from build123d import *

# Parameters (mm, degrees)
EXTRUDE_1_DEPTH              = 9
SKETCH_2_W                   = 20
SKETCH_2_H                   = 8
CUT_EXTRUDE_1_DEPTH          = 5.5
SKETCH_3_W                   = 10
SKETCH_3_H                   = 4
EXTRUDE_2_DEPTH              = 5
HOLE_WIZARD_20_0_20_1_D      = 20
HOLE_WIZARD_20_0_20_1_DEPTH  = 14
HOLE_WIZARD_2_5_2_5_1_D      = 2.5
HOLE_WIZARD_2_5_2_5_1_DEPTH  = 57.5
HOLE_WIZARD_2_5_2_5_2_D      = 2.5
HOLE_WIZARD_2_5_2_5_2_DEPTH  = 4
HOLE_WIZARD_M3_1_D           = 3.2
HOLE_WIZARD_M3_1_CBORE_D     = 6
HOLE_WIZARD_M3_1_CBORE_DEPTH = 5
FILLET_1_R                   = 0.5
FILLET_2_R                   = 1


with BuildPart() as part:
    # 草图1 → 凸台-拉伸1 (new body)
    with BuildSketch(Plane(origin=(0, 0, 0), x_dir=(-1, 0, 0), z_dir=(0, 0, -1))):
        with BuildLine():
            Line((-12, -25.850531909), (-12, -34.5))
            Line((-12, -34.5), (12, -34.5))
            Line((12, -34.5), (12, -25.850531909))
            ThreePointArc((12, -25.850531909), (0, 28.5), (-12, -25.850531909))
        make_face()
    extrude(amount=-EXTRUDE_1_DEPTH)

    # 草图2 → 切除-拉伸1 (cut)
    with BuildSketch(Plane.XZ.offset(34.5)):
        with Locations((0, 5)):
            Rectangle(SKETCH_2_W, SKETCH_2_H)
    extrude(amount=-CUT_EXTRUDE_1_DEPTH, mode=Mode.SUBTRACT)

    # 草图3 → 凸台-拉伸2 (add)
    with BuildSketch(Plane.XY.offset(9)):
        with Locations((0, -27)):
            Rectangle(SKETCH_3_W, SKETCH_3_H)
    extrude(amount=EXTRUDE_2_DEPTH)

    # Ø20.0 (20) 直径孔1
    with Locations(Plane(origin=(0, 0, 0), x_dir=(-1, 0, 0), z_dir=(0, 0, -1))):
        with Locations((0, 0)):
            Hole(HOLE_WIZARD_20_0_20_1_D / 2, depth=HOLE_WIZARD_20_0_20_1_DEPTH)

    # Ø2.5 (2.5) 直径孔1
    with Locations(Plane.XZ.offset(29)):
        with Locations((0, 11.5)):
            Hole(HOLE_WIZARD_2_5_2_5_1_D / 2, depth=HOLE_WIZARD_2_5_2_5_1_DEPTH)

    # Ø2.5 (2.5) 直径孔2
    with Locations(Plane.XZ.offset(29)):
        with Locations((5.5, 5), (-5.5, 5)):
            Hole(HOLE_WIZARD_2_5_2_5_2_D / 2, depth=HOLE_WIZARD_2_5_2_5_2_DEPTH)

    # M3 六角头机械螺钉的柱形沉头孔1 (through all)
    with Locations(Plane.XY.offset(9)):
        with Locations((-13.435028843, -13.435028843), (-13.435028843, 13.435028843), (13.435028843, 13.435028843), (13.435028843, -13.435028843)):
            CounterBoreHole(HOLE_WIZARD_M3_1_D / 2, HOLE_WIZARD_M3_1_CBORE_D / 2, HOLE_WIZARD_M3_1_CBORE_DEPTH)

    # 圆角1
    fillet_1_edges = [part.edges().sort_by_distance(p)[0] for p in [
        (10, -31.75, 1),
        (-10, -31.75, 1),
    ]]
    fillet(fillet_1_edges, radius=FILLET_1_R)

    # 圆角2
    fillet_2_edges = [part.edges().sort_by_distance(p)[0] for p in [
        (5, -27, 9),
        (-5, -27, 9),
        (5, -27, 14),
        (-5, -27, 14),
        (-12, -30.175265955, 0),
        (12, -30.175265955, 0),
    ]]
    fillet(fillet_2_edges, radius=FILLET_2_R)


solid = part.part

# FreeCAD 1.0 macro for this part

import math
import FreeCAD as App
import Part
import Sketcher

V = App.Vector


def edges_at(feature, points):
    """Names of the edges that pass closest to the given points."""
    edges = feature.Shape.Edges
    near = lambda p: min(range(len(edges)), key=lambda i: edges[i].distToShape(Part.Vertex(*p))[0])
    return sorted({f"Edge{near(p) + 1}" for p in points})


def add_polygon(sketch, points):
    """Adds a closed chain of lines whose ends are joined by coincident constraints."""
    first, n = sketch.GeometryCount, len(points)
    for a, b in zip(points, points[1:] + points[:1]):
        sketch.addGeometry(Part.LineSegment(App.Vector(*a, 0), App.Vector(*b, 0)), False)
    for i in range(n):
        sketch.addConstraint(Sketcher.Constraint("Coincident", first + i, 2, first + (i + 1) % n, 1))

doc = App.newDocument("Part")
params = doc.addObject("Spreadsheet::Sheet", "Params")
for row, (alias, value) in enumerate([
    ("sketch1_radius", "28.5 mm"),
    ("sketch1_width", "24 mm"),
    ("pad1_length", "9 mm"),
    ("sketch2_width", "20 mm"),
    ("sketch2_height", "8 mm"),
    ("pocket1_length", "5.5 mm"),
    ("sketch3_width", "10 mm"),
    ("sketch3_height", "4 mm"),
    ("pad2_length", "5 mm"),
    ("sketch4_diameter", "20 mm"),
    ("hole_diameter", "20 mm"),
    ("hole_depth", "14 mm"),
    ("sketch5_diameter", "2.5 mm"),
    ("hole2_diameter", "2.5 mm"),
    ("hole2_depth", "57.5 mm"),
    ("sketch6_diameter", "2.5 mm"),
    ("hole3_diameter", "2.5 mm"),
    ("hole3_depth", "4 mm"),
    ("sketch7_diameter", "3.2 mm"),
    ("hole4_diameter", "3.2 mm"),
    ("hole4_cbore_diameter", "6 mm"),
    ("hole4_cbore_depth", "5 mm"),
    ("fillet_radius", "0.5 mm"),
    ("fillet2_radius", "1 mm"),
], start=1):
    params.set(f"A{row}", alias)
    params.set(f"B{row}", "=" + value)
    params.setAlias(f"B{row}", alias)

body = doc.addObject("PartDesign::Body", "Body")

sketch1 = body.newObject("Sketcher::SketchObject", "Sketch")
sketch1.AttachmentSupport = (doc.getObject("XY_Plane"), [""])
sketch1.MapMode = "FlatFace"
sketch1.addGeometry(Part.LineSegment(V(12, -26, 0), V(12, -34, 0)), False)
sketch1.addGeometry(Part.LineSegment(V(12, -34, 0), V(-12, -34, 0)), False)
sketch1.addGeometry(Part.LineSegment(V(-12, -34, 0), V(-12, -26, 0)), False)
sketch1.addGeometry(Part.ArcOfCircle(Part.Circle(V(0, 0, 0), V(0, 0, 1), 28), math.radians(-65), math.radians(245)), False)
sketch1.addConstraint(Sketcher.Constraint("Coincident", 0, 2, 1, 1))
sketch1.addConstraint(Sketcher.Constraint("Coincident", 1, 2, 2, 1))
sketch1.addConstraint(Sketcher.Constraint("Coincident", 2, 2, 3, 2))
sketch1.addConstraint(Sketcher.Constraint("Coincident", 3, 1, 0, 1))
sketch1.addConstraint(Sketcher.Constraint("Vertical", 0))
sketch1.addConstraint(Sketcher.Constraint("Horizontal", 1))
sketch1.addConstraint(Sketcher.Constraint("Vertical", 2))
sketch1.addConstraint(Sketcher.Constraint("Coincident", 3, 3, -1, 1))
sketch1.addConstraint(Sketcher.Constraint("Horizontal", 2, 2, 3, 1))
sketch1.addConstraint(Sketcher.Constraint("Radius", 3, 28.5))
sketch1.addConstraint(Sketcher.Constraint("DistanceX", 1, 2, 1, 1, 24.0))
sketch1.addConstraint(Sketcher.Constraint("DistanceY", 0, 2, -1, 1, 34.5))
sketch1.setExpression("Constraints[9]", "Params.sketch1_radius")
sketch1.setExpression("Constraints[10]", "Params.sketch1_width")
pad1 = body.newObject("PartDesign::Pad", "Pad")
pad1.Profile = sketch1
pad1.setExpression("Length", "Params.pad1_length")

sketch2 = body.newObject("Sketcher::SketchObject", "Sketch001")
sketch2.AttachmentSupport = (doc.getObject("XZ_Plane"), [""])
sketch2.MapMode = "FlatFace"
sketch2.AttachmentOffset = App.Placement(V(0, 0, 34.5), App.Rotation())
add_polygon(sketch2, [(-10, 9), (-10, 1), (10, 1), (10, 9)])
sketch2.addConstraint(Sketcher.Constraint("Vertical", 0))
sketch2.addConstraint(Sketcher.Constraint("Horizontal", 1))
sketch2.addConstraint(Sketcher.Constraint("Vertical", 2))
sketch2.addConstraint(Sketcher.Constraint("Horizontal", 3))
sketch2.addConstraint(Sketcher.Constraint("DistanceX", 1, 1, 1, 2, 20.0))
sketch2.addConstraint(Sketcher.Constraint("DistanceY", 0, 2, 0, 1, 8.0))
sketch2.addConstraint(Sketcher.Constraint("DistanceX", 0, 2, -1, 1, 10.0))
sketch2.addConstraint(Sketcher.Constraint("DistanceY", -1, 1, 0, 2, 1.0))
sketch2.setExpression("Constraints[8]", "Params.sketch2_width")
sketch2.setExpression("Constraints[9]", "Params.sketch2_height")
pocket1 = body.newObject("PartDesign::Pocket", "Pocket")
pocket1.Profile = sketch2
pocket1.setExpression("Length", "Params.pocket1_length")

sketch3 = body.newObject("Sketcher::SketchObject", "Sketch002")
sketch3.AttachmentSupport = (doc.getObject("XY_Plane"), [""])
sketch3.MapMode = "FlatFace"
sketch3.AttachmentOffset = App.Placement(V(0, 0, 9), App.Rotation())
add_polygon(sketch3, [(-5, -25), (-5, -29), (5, -29), (5, -25)])
sketch3.addConstraint(Sketcher.Constraint("Vertical", 0))
sketch3.addConstraint(Sketcher.Constraint("Horizontal", 1))
sketch3.addConstraint(Sketcher.Constraint("Vertical", 2))
sketch3.addConstraint(Sketcher.Constraint("Horizontal", 3))
sketch3.addConstraint(Sketcher.Constraint("DistanceX", 1, 1, 1, 2, 10.0))
sketch3.addConstraint(Sketcher.Constraint("DistanceY", 0, 2, 0, 1, 4.0))
sketch3.addConstraint(Sketcher.Constraint("DistanceX", 0, 2, -1, 1, 5.0))
sketch3.addConstraint(Sketcher.Constraint("DistanceY", 0, 2, -1, 1, 29.0))
sketch3.setExpression("Constraints[8]", "Params.sketch3_width")
sketch3.setExpression("Constraints[9]", "Params.sketch3_height")
pad2 = body.newObject("PartDesign::Pad", "Pad001")
pad2.Profile = sketch3
pad2.setExpression("Length", "Params.pad2_length")

sketch4 = body.newObject("Sketcher::SketchObject", "Sketch003")
sketch4.AttachmentSupport = (doc.getObject("XY_Plane"), [""])
sketch4.MapMode = "FlatFace"
sketch4.addGeometry(Part.Circle(V(0, 0, 0), V(0, 0, 1), 10), False)
sketch4.addConstraint(Sketcher.Constraint("Coincident", 0, 3, -1, 1))
sketch4.addConstraint(Sketcher.Constraint("Diameter", 0, 20.0))
sketch4.setExpression("Constraints[1]", "Params.sketch4_diameter")
doc.recompute()
hole = body.newObject("PartDesign::Hole", "Hole")
hole.Profile = sketch4
hole.ThreadType = "None"
hole.setExpression("Diameter", "Params.hole_diameter")
hole.DepthType = "Dimension"
hole.setExpression("Depth", "Params.hole_depth")
hole.DrillPoint = "Flat"
hole.Reversed = True

sketch5 = body.newObject("Sketcher::SketchObject", "Sketch004")
sketch5.AttachmentSupport = (doc.getObject("XZ_Plane"), [""])
sketch5.MapMode = "FlatFace"
sketch5.AttachmentOffset = App.Placement(V(0, 0, 29), App.Rotation())
sketch5.addGeometry(Part.Circle(V(0, 11.5, 0), V(0, 0, 1), 1.2), False)
sketch5.addConstraint(Sketcher.Constraint("PointOnObject", 0, 3, -2))
sketch5.addConstraint(Sketcher.Constraint("Diameter", 0, 2.5))
sketch5.addConstraint(Sketcher.Constraint("DistanceY", -1, 1, 0, 3, 11.5))
sketch5.setExpression("Constraints[1]", "Params.sketch5_diameter")
doc.recompute()
hole2 = body.newObject("PartDesign::Hole", "Hole001")
hole2.Profile = sketch5
hole2.ThreadType = "None"
hole2.setExpression("Diameter", "Params.hole2_diameter")
hole2.DepthType = "Dimension"
hole2.setExpression("Depth", "Params.hole2_depth")
hole2.DrillPoint = "Flat"

sketch6 = body.newObject("Sketcher::SketchObject", "Sketch005")
sketch6.AttachmentSupport = (doc.getObject("XZ_Plane"), [""])
sketch6.MapMode = "FlatFace"
sketch6.AttachmentOffset = App.Placement(V(0, 0, 29), App.Rotation())
sketch6.addGeometry(Part.Circle(V(5.5, 5, 0), V(0, 0, 1), 1.2), False)
sketch6.addGeometry(Part.Circle(V(-5.5, 5, 0), V(0, 0, 1), 1.2), False)
sketch6.addConstraint(Sketcher.Constraint("Equal", 0, 1))
sketch6.addConstraint(Sketcher.Constraint("Symmetric", 0, 3, 1, 3, -2))
sketch6.addConstraint(Sketcher.Constraint("Diameter", 0, 2.5))
sketch6.addConstraint(Sketcher.Constraint("DistanceY", -1, 1, 0, 3, 5.0))
sketch6.addConstraint(Sketcher.Constraint("DistanceX", 1, 3, 0, 3, 11.0))
sketch6.setExpression("Constraints[2]", "Params.sketch6_diameter")
doc.recompute()
hole3 = body.newObject("PartDesign::Hole", "Hole002")
hole3.Profile = sketch6
hole3.ThreadType = "None"
hole3.setExpression("Diameter", "Params.hole3_diameter")
hole3.DepthType = "Dimension"
hole3.setExpression("Depth", "Params.hole3_depth")
hole3.DrillPoint = "Flat"

sketch7 = body.newObject("Sketcher::SketchObject", "Sketch006")
sketch7.AttachmentSupport = (doc.getObject("XY_Plane"), [""])
sketch7.MapMode = "FlatFace"
sketch7.AttachmentOffset = App.Placement(V(0, 0, 9), App.Rotation())
sketch7.addGeometry(Part.Circle(V(-13.4, -13.4, 0), V(0, 0, 1), 1.6), False)
sketch7.addGeometry(Part.Circle(V(-13.4, 13.4, 0), V(0, 0, 1), 1.6), False)
sketch7.addGeometry(Part.Circle(V(13.4, 13.4, 0), V(0, 0, 1), 1.6), False)
sketch7.addGeometry(Part.Circle(V(13.4, -13.4, 0), V(0, 0, 1), 1.6), False)
sketch7.addConstraint(Sketcher.Constraint("Equal", 0, 1))
sketch7.addConstraint(Sketcher.Constraint("Equal", 1, 2))
sketch7.addConstraint(Sketcher.Constraint("Equal", 2, 3))
sketch7.addConstraint(Sketcher.Constraint("Symmetric", 0, 3, 2, 3, -1, 1))
sketch7.addConstraint(Sketcher.Constraint("Symmetric", 1, 3, 3, 3, -1, 1))
sketch7.addConstraint(Sketcher.Constraint("Symmetric", 1, 3, 2, 3, -2))
sketch7.addConstraint(Sketcher.Constraint("Diameter", 0, 3.2))
sketch7.addConstraint(Sketcher.Constraint("DistanceX", 0, 3, -1, 1, 13.435029))
sketch7.addConstraint(Sketcher.Constraint("DistanceY", 0, 3, -1, 1, 13.435029))
sketch7.setExpression("Constraints[6]", "Params.sketch7_diameter")
doc.recompute()
hole4 = body.newObject("PartDesign::Hole", "Hole003")
hole4.Profile = sketch7
hole4.ThreadType = "None"
hole4.setExpression("Diameter", "Params.hole4_diameter")
hole4.DepthType = "ThroughAll"
hole4.HoleCutType = "Counterbore"
hole4.setExpression("HoleCutDiameter", "Params.hole4_cbore_diameter")
hole4.setExpression("HoleCutDepth", "Params.hole4_cbore_depth")
doc.recompute()

fillet = body.newObject("PartDesign::Fillet", "Fillet")
fillet.Base = (hole4, edges_at(hole4, [(10, -31.75, 1), (-10, -31.75, 1)]))
fillet.setExpression("Radius", "Params.fillet_radius")
doc.recompute()

fillet2 = body.newObject("PartDesign::Fillet", "Fillet001")
fillet2.Base = (fillet, edges_at(fillet, [
    (5, -27, 9),
    (-5, -27, 9),
    (5, -27, 14),
    (-5, -27, 14),
    (-12, -30.175, 0),
    (12, -30.175, 0),
]))
fillet2.setExpression("Radius", "Params.fillet2_radius")

doc.recompute()
